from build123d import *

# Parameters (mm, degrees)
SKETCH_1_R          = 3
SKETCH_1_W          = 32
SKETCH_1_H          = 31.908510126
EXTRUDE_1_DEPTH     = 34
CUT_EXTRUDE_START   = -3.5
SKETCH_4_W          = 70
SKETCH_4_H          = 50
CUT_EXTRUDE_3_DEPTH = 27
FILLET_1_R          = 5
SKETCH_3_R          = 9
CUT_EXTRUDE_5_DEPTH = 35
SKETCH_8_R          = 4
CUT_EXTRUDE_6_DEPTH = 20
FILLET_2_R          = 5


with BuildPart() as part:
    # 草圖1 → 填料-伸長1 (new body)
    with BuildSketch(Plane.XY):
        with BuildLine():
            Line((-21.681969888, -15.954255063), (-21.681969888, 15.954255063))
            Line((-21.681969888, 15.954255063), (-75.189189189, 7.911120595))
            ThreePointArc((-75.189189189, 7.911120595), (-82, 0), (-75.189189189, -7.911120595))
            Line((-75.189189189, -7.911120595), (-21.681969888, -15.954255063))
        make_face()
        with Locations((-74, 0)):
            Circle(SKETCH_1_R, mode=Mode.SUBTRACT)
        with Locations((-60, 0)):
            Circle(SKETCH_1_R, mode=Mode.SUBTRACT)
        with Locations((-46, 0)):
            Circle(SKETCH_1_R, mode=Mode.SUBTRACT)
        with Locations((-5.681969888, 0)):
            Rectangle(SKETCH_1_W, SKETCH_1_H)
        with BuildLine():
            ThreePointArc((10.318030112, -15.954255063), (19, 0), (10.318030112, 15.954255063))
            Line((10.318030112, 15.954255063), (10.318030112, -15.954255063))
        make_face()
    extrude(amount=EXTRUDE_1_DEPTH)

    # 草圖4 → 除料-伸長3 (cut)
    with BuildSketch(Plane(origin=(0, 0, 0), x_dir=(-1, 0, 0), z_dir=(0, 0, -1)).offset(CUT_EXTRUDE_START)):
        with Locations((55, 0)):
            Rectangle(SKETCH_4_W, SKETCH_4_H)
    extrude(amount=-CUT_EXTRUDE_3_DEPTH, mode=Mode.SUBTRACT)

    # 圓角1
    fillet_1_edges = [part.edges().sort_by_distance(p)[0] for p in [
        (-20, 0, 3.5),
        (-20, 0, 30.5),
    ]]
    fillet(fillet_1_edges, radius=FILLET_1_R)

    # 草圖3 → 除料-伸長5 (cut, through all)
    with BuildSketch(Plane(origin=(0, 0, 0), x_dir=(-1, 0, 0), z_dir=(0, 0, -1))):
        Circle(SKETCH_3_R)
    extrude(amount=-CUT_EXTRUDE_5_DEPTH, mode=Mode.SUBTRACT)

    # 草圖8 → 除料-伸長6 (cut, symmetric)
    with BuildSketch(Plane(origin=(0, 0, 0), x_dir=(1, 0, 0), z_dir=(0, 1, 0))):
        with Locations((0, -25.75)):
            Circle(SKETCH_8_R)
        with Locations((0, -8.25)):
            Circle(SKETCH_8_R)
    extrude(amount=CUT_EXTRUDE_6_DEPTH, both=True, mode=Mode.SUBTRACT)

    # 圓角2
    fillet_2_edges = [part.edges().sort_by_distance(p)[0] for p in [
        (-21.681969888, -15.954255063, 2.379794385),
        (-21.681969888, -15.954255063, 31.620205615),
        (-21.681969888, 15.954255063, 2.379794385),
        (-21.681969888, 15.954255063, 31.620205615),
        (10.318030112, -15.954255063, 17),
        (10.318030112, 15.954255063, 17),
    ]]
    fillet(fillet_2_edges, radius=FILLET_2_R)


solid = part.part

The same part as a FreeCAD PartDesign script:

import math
import FreeCAD as App
import Part
import Sketcher

V = App.Vector


def edges_at(feature, points):
    """Names of the edges that pass closest to the given points."""
    edges = feature.Shape.Edges
    near = lambda p: min(range(len(edges)), key=lambda i: edges[i].distToShape(Part.Vertex(*p))[0])
    return sorted({f"Edge{near(p) + 1}" for p in points})


def add_polygon(sketch, points):
    """Adds a closed chain of lines whose ends are joined by coincident constraints."""
    first, n = sketch.GeometryCount, len(points)
    for a, b in zip(points, points[1:] + points[:1]):
        sketch.addGeometry(Part.LineSegment(App.Vector(*a, 0), App.Vector(*b, 0)), False)
    for i in range(n):
        sketch.addConstraint(Sketcher.Constraint("Coincident", first + i, 2, first + (i + 1) % n, 1))

doc = App.newDocument("Part")
body = doc.addObject("PartDesign::Body", "Body")

# Sketch on XY plane
sketch1 = body.newObject("Sketcher::SketchObject", "Sketch")
sketch1.AttachmentSupport = (doc.getObject("XY_Plane"), [""])
sketch1.MapMode = "FlatFace"
sketch1.addGeometry(Part.LineSegment(V(-75.2, -7.9, 0), V(-21.7, -16, 0)), False)
sketch1.addGeometry(Part.LineSegment(V(-21.7, -16, 0), V(10.3, -16, 0)), False)
sketch1.addGeometry(Part.ArcOfCircle(Part.Circle(V(0, 0, 0), V(0, 0, 1), 19), math.radians(-57), math.radians(57)), False)
sketch1.addGeometry(Part.LineSegment(V(10.3, 16, 0), V(-21.7, 16, 0)), False)
sketch1.addGeometry(Part.LineSegment(V(-21.7, 16, 0), V(-75.2, 7.9, 0)), False)
sketch1.addGeometry(Part.ArcOfCircle(Part.Circle(V(-74, 0, 0), V(0, 0, 1), 8), math.radians(99), math.radians(261)), False)
sketch1.addGeometry(Part.Circle(V(-74, 0, 0), V(0, 0, 1), 3), False)
sketch1.addGeometry(Part.Circle(V(-60, 0, 0), V(0, 0, 1), 3), False)
sketch1.addGeometry(Part.Circle(V(-46, 0, 0), V(0, 0, 1), 3), False)
sketch1.addConstraint(Sketcher.Constraint("Coincident", 0, 2, 1, 1))
sketch1.addConstraint(Sketcher.Constraint("Coincident", 1, 2, 2, 1))
sketch1.addConstraint(Sketcher.Constraint("Coincident", 2, 2, 3, 1))
sketch1.addConstraint(Sketcher.Constraint("Coincident", 3, 2, 4, 1))
sketch1.addConstraint(Sketcher.Constraint("Tangent", 4, 2, 5, 1))
sketch1.addConstraint(Sketcher.Constraint("Tangent", 5, 2, 0, 1))
sketch1.addConstraint(Sketcher.Constraint("Horizontal", 1))
sketch1.addConstraint(Sketcher.Constraint("Horizontal", 3))
sketch1.addConstraint(Sketcher.Constraint("Coincident", 2, 3, -1, 1))
sketch1.addConstraint(Sketcher.Constraint("Coincident", 6, 3, 5, 3))
sketch1.addConstraint(Sketcher.Constraint("Equal", 6, 7))
sketch1.addConstraint(Sketcher.Constraint("Equal", 7, 8))
sketch1.addConstraint(Sketcher.Constraint("Symmetric", 0, 2, 3, 2, -1))
sketch1.addConstraint(Sketcher.Constraint("PointOnObject", 5, 3, -1))
sketch1.addConstraint(Sketcher.Constraint("PointOnObject", 7, 3, -1))
sketch1.addConstraint(Sketcher.Constraint("PointOnObject", 8, 3, -1))
sketch1.addConstraint(Sketcher.Constraint("Diameter", 6, 6.0))
sketch1.addConstraint(Sketcher.Constraint("Radius", 2, 19.0))
sketch1.addConstraint(Sketcher.Constraint("Radius", 5, 8.0))
sketch1.addConstraint(Sketcher.Constraint("DistanceX", 1, 1, 1, 2, 32.0))
sketch1.addConstraint(Sketcher.Constraint("DistanceX", 5, 3, -1, 1, 74.0))
sketch1.addConstraint(Sketcher.Constraint("DistanceX", 7, 3, -1, 1, 60.0))
sketch1.addConstraint(Sketcher.Constraint("DistanceX", 8, 3, -1, 1, 46.0))
sketch1.addConstraint(Sketcher.Constraint("Distance", 0, 54.108359))
pad1 = body.newObject("PartDesign::Pad", "Pad")
pad1.Profile = sketch1
pad1.Length = 34

# Sketch on XY plane
sketch2 = body.newObject("Sketcher::SketchObject", "Sketch001")
sketch2.AttachmentSupport = (doc.getObject("XY_Plane"), [""])
sketch2.MapMode = "FlatFace"
sketch2.AttachmentOffset = App.Placement(V(0, 0, 3.5), App.Rotation())
add_polygon(sketch2, [(-20, 25), (-20, -25), (-90, -25), (-90, 25)])  # lines 0-3
sketch2.addConstraint(Sketcher.Constraint("Vertical", 0))
sketch2.addConstraint(Sketcher.Constraint("Horizontal", 1))
sketch2.addConstraint(Sketcher.Constraint("Vertical", 2))
sketch2.addConstraint(Sketcher.Constraint("Horizontal", 3))
sketch2.addConstraint(Sketcher.Constraint("DistanceX", 1, 2, 1, 1, 70.0))
sketch2.addConstraint(Sketcher.Constraint("DistanceY", 0, 2, 0, 1, 50.0))
sketch2.addConstraint(Sketcher.Constraint("DistanceX", 0, 2, -1, 1, 20.0))
sketch2.addConstraint(Sketcher.Constraint("DistanceY", 0, 2, -1, 1, 25.0))
pocket1 = body.newObject("PartDesign::Pocket", "Pocket")
pocket1.Profile = sketch2
pocket1.Length = 27
pocket1.Reversed = True
doc.recompute()

fillet = body.newObject("PartDesign::Fillet", "Fillet")
fillet.Base = (pocket1, edges_at(pocket1, [(-20, 0, 3.5), (-20, 0, 30.5)]))
fillet.Radius = 5

# Sketch on XY plane
sketch3 = body.newObject("Sketcher::SketchObject", "Sketch002")
sketch3.AttachmentSupport = (doc.getObject("XY_Plane"), [""])
sketch3.MapMode = "FlatFace"
sketch3.addGeometry(Part.Circle(V(0, 0, 0), V(0, 0, 1), 9), False)
sketch3.addConstraint(Sketcher.Constraint("Coincident", 0, 3, -1, 1))
sketch3.addConstraint(Sketcher.Constraint("Diameter", 0, 18.0))
pocket2 = body.newObject("PartDesign::Pocket", "Pocket001")
pocket2.Profile = sketch3
pocket2.Type = "ThroughAll"
pocket2.Reversed = True

# Sketch on XZ plane
sketch4 = body.newObject("Sketcher::SketchObject", "Sketch003")
sketch4.AttachmentSupport = (doc.getObject("XZ_Plane"), [""])
sketch4.MapMode = "FlatFace"
sketch4.addGeometry(Part.Circle(V(0, 25.8, 0), V(0, 0, 1), 4), False)
sketch4.addGeometry(Part.Circle(V(0, 8.2, 0), V(0, 0, 1), 4), False)
sketch4.addConstraint(Sketcher.Constraint("Equal", 0, 1))
sketch4.addConstraint(Sketcher.Constraint("PointOnObject", 0, 3, -2))
sketch4.addConstraint(Sketcher.Constraint("PointOnObject", 1, 3, -2))
sketch4.addConstraint(Sketcher.Constraint("Diameter", 0, 8.0))
sketch4.addConstraint(Sketcher.Constraint("DistanceY", 1, 3, 0, 3, 17.5))
sketch4.addConstraint(Sketcher.Constraint("DistanceY", -1, 1, 0, 3, 25.75))
pocket3 = body.newObject("PartDesign::Pocket", "Pocket002")
pocket3.Profile = sketch4
pocket3.Length = 40
pocket3.Midplane = True
doc.recompute()

fillet2 = body.newObject("PartDesign::Fillet", "Fillet001")
fillet2.Base = (pocket3, edges_at(pocket3, [
    (-21.682, -15.954, 2.38),
    (-21.682, -15.954, 31.62),
    (-21.682, 15.954, 2.38),
    (-21.682, 15.954, 31.62),
    (10.318, -15.954, 17),
    (10.318, 15.954, 17),
]))
fillet2.Radius = 5

doc.recompute()
